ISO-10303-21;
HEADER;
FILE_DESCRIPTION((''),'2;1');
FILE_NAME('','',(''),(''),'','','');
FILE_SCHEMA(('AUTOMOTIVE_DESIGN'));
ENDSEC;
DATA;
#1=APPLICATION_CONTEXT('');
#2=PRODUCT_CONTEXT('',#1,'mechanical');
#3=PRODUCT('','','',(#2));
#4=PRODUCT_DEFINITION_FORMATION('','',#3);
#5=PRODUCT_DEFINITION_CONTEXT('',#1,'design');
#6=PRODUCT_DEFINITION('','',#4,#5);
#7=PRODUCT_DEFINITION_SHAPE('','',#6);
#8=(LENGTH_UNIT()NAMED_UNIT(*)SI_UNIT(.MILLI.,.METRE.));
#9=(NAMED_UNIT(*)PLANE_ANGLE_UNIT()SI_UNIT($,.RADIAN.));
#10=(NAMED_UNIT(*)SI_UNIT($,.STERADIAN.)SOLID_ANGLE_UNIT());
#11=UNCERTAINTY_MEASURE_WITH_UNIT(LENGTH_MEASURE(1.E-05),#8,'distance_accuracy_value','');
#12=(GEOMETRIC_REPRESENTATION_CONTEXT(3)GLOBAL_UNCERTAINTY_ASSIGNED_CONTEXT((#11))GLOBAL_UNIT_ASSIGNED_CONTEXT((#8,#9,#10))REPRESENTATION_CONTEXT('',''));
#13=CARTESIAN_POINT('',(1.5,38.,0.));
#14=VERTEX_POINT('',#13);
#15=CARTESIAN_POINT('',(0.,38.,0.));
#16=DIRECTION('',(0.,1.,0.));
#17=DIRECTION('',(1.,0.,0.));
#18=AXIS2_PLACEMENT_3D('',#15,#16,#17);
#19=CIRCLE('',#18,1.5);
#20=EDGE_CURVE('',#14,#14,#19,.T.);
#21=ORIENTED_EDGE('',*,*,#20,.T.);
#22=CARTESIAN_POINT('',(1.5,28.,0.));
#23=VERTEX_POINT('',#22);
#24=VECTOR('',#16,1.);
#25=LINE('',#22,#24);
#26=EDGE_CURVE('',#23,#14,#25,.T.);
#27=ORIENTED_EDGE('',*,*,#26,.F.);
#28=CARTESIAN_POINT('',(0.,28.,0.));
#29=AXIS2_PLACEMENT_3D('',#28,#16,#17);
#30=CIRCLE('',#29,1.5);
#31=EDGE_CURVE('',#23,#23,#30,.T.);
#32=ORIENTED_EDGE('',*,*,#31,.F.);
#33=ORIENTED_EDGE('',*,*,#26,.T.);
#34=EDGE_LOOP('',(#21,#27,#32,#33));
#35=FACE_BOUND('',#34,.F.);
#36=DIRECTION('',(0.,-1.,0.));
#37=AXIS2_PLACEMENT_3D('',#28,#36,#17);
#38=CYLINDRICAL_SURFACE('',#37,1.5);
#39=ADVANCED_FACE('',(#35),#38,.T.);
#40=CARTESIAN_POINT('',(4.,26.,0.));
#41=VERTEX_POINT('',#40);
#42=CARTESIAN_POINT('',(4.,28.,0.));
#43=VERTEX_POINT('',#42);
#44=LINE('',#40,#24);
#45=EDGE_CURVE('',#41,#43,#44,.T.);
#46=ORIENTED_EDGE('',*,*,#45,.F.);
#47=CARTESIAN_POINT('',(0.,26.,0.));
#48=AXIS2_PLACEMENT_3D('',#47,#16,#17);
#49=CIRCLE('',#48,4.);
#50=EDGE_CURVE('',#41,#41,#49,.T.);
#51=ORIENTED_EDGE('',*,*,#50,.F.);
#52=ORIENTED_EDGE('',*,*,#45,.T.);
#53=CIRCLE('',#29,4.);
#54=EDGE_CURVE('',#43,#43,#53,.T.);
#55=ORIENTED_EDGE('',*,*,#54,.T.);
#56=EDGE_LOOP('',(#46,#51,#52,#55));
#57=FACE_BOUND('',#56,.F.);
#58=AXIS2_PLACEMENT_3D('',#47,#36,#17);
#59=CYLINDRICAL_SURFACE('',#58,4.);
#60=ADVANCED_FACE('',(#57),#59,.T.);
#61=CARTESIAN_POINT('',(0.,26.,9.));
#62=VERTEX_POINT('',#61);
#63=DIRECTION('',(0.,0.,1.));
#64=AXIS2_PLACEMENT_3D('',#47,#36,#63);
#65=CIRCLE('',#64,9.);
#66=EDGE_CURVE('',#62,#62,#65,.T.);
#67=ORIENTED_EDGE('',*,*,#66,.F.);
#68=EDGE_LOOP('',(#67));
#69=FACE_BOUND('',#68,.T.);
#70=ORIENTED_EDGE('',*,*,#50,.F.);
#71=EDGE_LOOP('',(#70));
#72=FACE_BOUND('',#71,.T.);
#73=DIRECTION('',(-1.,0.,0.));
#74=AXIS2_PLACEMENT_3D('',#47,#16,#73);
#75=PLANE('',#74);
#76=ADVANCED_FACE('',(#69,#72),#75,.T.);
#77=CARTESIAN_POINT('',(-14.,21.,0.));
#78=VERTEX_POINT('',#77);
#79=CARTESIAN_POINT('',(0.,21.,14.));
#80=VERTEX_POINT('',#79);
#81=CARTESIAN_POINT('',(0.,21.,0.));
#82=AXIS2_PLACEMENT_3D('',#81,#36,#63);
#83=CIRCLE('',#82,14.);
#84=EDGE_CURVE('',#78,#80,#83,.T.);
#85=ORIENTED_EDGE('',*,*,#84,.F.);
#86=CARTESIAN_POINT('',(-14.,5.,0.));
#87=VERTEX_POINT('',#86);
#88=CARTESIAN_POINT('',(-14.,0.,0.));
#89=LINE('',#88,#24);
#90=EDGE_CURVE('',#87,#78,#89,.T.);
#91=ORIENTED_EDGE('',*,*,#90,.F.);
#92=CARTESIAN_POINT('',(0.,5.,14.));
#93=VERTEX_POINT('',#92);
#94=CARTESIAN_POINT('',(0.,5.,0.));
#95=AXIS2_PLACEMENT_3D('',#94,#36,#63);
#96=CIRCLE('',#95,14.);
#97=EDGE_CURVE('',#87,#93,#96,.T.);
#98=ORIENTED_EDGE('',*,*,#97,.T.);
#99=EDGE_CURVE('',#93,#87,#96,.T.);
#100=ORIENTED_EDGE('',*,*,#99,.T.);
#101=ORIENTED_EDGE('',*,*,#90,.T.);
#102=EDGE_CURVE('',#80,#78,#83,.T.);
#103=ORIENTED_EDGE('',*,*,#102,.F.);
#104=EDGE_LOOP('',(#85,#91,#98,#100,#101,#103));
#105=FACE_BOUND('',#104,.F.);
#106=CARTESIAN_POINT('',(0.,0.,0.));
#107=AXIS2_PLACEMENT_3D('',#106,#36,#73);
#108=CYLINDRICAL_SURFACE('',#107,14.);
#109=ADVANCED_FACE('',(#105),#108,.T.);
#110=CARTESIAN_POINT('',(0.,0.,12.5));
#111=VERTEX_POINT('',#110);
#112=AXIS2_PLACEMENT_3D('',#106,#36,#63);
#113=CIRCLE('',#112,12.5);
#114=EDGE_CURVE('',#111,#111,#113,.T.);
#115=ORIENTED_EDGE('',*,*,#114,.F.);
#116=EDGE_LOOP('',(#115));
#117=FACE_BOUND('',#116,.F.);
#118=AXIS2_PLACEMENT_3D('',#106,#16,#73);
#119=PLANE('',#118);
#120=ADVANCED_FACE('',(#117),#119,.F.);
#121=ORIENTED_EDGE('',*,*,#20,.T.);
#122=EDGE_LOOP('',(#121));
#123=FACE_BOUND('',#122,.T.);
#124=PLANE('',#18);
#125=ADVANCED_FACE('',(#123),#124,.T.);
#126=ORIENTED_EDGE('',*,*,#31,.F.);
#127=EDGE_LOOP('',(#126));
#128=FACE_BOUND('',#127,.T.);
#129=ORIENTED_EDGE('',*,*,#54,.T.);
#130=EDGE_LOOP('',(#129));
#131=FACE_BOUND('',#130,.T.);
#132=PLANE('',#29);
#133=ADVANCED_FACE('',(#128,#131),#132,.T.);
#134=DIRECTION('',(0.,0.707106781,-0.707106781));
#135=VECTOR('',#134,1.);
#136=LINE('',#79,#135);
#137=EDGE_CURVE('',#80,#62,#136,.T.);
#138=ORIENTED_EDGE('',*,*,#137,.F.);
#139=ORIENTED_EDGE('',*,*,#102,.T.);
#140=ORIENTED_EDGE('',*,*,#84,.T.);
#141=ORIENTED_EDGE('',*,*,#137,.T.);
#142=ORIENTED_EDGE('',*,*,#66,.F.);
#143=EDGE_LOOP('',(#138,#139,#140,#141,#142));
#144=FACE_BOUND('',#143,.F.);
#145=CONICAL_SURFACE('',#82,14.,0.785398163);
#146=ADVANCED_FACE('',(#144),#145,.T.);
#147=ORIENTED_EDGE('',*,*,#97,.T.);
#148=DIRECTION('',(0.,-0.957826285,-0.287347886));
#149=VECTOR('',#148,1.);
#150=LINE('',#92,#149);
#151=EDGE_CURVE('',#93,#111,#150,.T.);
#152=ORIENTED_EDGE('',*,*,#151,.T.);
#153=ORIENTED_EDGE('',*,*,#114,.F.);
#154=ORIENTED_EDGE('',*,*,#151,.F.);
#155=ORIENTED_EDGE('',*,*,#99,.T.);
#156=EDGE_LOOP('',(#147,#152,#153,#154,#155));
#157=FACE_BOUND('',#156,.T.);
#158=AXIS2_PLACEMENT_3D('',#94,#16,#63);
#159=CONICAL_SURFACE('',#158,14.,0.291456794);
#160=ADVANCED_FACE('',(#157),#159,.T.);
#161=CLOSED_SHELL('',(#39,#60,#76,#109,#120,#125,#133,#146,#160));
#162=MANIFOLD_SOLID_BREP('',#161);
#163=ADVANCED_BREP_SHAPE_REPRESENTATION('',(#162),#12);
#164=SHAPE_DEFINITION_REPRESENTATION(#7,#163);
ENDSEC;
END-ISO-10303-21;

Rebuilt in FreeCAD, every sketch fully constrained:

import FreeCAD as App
import Part
import Sketcher
from FreeCAD import Vector

doc = App.newDocument("Part")
params = doc.addObject("Spreadsheet::Sheet", "Params")
for row, (alias, value) in enumerate([
    ("sketch1_diameter", "28 mm"),
    ("pad1_length", "26 mm"),
    ("sketch2_diameter", "8 mm"),
    ("pad2_length", "2 mm"),
    ("sketch3_diameter", "3 mm"),
    ("pad3_length", "10 mm"),
    ("sketch4_width", "5 mm"),
    ("sketch4_height", "1.5 mm"),
    ("groove_angle", "360 deg"),
], start=1):
    params.set(f"A{row}", alias)
    params.set(f"B{row}", "=" + value)
    params.setAlias(f"B{row}", alias)

body = doc.addObject("PartDesign::Body", "Body")

# Sketch on XZ plane
sketch1 = body.newObject("Sketcher::SketchObject", "Sketch")
sketch1.AttachmentSupport = (doc.getObject("XZ_Plane"), [""])
sketch1.MapMode = "FlatFace"
sketch1.addGeometry(Part.Circle(Vector(0, 0, 0), Vector(0, 0, 1), 14), False)
sketch1.addConstraint([
    Sketcher.Constraint("Coincident", 0, 3, -1, 1),
    Sketcher.Constraint("Diameter", 0, 28.0),
])
sketch1.setExpression("Constraints[1]", "Params.sketch1_diameter")
pad1 = body.newObject("PartDesign::Pad", "Pad")
pad1.Profile = sketch1
pad1.setExpression("Length", "Params.pad1_length")
pad1.Reversed = True

# Sketch on XZ plane
sketch2 = body.newObject("Sketcher::SketchObject", "Sketch001")
sketch2.AttachmentSupport = (doc.getObject("XZ_Plane"), [""])
sketch2.MapMode = "FlatFace"
sketch2.AttachmentOffset = App.Placement(Vector(0, 0, -26), App.Rotation())
sketch2.addGeometry(Part.Circle(Vector(0, 0, 0), Vector(0, 0, 1), 4), False)
sketch2.addConstraint([
    Sketcher.Constraint("Coincident", 0, 3, -1, 1),
    Sketcher.Constraint("Diameter", 0, 8.0),
])
sketch2.setExpression("Constraints[1]", "Params.sketch2_diameter")
pad2 = body.newObject("PartDesign::Pad", "Pad001")
pad2.Profile = sketch2
pad2.setExpression("Length", "Params.pad2_length")
pad2.Reversed = True

# Sketch on XZ plane
sketch3 = body.newObject("Sketcher::SketchObject", "Sketch002")
sketch3.AttachmentSupport = (doc.getObject("XZ_Plane"), [""])
sketch3.MapMode = "FlatFace"
sketch3.AttachmentOffset = App.Placement(Vector(0, 0, -28), App.Rotation())
sketch3.addGeometry(Part.Circle(Vector(0, 0, 0), Vector(0, 0, 1), 1.5), False)
sketch3.addConstraint([
    Sketcher.Constraint("Coincident", 0, 3, -1, 1),
    Sketcher.Constraint("Diameter", 0, 3.0),
])
sketch3.setExpression("Constraints[1]", "Params.sketch3_diameter")
pad3 = body.newObject("PartDesign::Pad", "Pad002")
pad3.Profile = sketch3
pad3.setExpression("Length", "Params.pad3_length")
pad3.Reversed = True

# Sketch on YZ plane
sketch4 = body.newObject("Sketcher::SketchObject", "Sketch003")
sketch4.AttachmentSupport = (doc.getObject("YZ_Plane"), [""])
sketch4.MapMode = "FlatFace"
sketch4.addGeometry([
    Part.LineSegment(Vector(21, 14, 0), Vector(26, 9, 0)),  # 0
    Part.LineSegment(Vector(26, 9, 0), Vector(26, 14, 0)),  # 1
    Part.LineSegment(Vector(26, 14, 0), Vector(21, 14, 0)),  # 2
    Part.LineSegment(Vector(0, 12.5, 0), Vector(5, 14, 0)),  # 3
    Part.LineSegment(Vector(5, 14, 0), Vector(0, 14, 0)),  # 4
    Part.LineSegment(Vector(0, 14, 0), Vector(0, 12.5, 0)),  # 5
], False)
sketch4.addConstraint([
    Sketcher.Constraint("Coincident", 0, 2, 1, 1),
    Sketcher.Constraint("Coincident", 1, 2, 2, 1),
    Sketcher.Constraint("Coincident", 2, 2, 0, 1),
    Sketcher.Constraint("Coincident", 3, 2, 4, 1),
    Sketcher.Constraint("Coincident", 4, 2, 5, 1),
    Sketcher.Constraint("Coincident", 5, 2, 3, 1),
    Sketcher.Constraint("Vertical", 1),
    Sketcher.Constraint("Horizontal", 2),
    Sketcher.Constraint("Horizontal", 4),
    Sketcher.Constraint("Vertical", 5),
    Sketcher.Constraint("PointOnObject", 4, 2, -2),
    Sketcher.Constraint("Horizontal", 2, 2, 3, 2),
    Sketcher.Constraint("Equal", 2, 4),
    Sketcher.Constraint("Equal", 4, 1),
    Sketcher.Constraint("DistanceX", 2, 2, 2, 1, 5.0),
    Sketcher.Constraint("DistanceY", 5, 2, 5, 1, 1.5),
    Sketcher.Constraint("DistanceX", -1, 1, 0, 2, 26.0),
    Sketcher.Constraint("DistanceY", -1, 1, 0, 2, 9.0),
])
sketch4.setExpression("Constraints[14]", "Params.sketch4_width")
sketch4.setExpression("Constraints[15]", "Params.sketch4_height")
groove = body.newObject("PartDesign::Groove", "Groove")
groove.Profile = sketch4
groove.ReferenceAxis = (sketch4, ["H_Axis"])
groove.setExpression("Angle", "Params.groove_angle")

doc.recompute()
